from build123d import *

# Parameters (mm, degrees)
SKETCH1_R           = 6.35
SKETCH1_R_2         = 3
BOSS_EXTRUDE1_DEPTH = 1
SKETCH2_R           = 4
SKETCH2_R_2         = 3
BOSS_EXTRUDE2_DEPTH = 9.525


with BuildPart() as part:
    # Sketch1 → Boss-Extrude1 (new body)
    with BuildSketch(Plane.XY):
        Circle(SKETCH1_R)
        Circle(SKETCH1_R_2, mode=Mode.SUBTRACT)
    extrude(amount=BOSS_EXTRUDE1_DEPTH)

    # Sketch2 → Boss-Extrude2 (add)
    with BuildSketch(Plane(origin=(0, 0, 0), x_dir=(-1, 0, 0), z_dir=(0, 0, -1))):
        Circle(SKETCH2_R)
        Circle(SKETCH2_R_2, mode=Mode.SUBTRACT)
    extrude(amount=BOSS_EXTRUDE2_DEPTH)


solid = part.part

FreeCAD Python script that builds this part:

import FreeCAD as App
import Part
import Sketcher
from FreeCAD import Vector
Q = App.Units.Quantity

doc = App.newDocument("Part")
body = doc.addObject("PartDesign::Body", "Body")

sketch1 = doc.addObject("Sketcher::SketchObject", "Sketch")
body.addObject(sketch1)
sketch1.AttachmentSupport = (doc.XY_Plane, [""])
sketch1.MapMode = "FlatFace"
sketch1.addGeometry([
    Part.Circle(Vector(0, 0, 0), Vector(0, 0, 1), 6.3),
    Part.Circle(Vector(0, 0, 0), Vector(0, 0, 1), 3),
], False)
sketch1.addConstraint([
    Sketcher.Constraint("Coincident", 0, 3, -1, 1),
    Sketcher.Constraint("Coincident", 1, 3, -1, 1),
    Sketcher.Constraint("Diameter", 1, Q("6 mm")),
    Sketcher.Constraint("Diameter", 0, Q("12.7 mm")),
])
pad1 = doc.addObject("PartDesign::Pad", "Pad")
body.addObject(pad1)
pad1.Profile = sketch1
pad1.Length = 1

sketch2 = doc.addObject("Sketcher::SketchObject", "Sketch001")
body.addObject(sketch2)
sketch2.AttachmentSupport = (doc.XY_Plane, [""])
sketch2.MapMode = "FlatFace"
sketch2.addGeometry([
    Part.Circle(Vector(0, 0, 0), Vector(0, 0, 1), 4),
    Part.Circle(Vector(0, 0, 0), Vector(0, 0, 1), 3),
], False)
sketch2.addConstraint([
    Sketcher.Constraint("Coincident", 0, 3, -1, 1),
    Sketcher.Constraint("Coincident", 1, 3, -1, 1),
    Sketcher.Constraint("Diameter", 0, Q("8 mm")),
    Sketcher.Constraint("Diameter", 1, Q("6 mm")),
])
pad2 = doc.addObject("PartDesign::Pad", "Pad001")
body.addObject(pad2)
pad2.Profile = sketch2
pad2.Length = 9.525
pad2.Reversed = True

doc.recompute()
